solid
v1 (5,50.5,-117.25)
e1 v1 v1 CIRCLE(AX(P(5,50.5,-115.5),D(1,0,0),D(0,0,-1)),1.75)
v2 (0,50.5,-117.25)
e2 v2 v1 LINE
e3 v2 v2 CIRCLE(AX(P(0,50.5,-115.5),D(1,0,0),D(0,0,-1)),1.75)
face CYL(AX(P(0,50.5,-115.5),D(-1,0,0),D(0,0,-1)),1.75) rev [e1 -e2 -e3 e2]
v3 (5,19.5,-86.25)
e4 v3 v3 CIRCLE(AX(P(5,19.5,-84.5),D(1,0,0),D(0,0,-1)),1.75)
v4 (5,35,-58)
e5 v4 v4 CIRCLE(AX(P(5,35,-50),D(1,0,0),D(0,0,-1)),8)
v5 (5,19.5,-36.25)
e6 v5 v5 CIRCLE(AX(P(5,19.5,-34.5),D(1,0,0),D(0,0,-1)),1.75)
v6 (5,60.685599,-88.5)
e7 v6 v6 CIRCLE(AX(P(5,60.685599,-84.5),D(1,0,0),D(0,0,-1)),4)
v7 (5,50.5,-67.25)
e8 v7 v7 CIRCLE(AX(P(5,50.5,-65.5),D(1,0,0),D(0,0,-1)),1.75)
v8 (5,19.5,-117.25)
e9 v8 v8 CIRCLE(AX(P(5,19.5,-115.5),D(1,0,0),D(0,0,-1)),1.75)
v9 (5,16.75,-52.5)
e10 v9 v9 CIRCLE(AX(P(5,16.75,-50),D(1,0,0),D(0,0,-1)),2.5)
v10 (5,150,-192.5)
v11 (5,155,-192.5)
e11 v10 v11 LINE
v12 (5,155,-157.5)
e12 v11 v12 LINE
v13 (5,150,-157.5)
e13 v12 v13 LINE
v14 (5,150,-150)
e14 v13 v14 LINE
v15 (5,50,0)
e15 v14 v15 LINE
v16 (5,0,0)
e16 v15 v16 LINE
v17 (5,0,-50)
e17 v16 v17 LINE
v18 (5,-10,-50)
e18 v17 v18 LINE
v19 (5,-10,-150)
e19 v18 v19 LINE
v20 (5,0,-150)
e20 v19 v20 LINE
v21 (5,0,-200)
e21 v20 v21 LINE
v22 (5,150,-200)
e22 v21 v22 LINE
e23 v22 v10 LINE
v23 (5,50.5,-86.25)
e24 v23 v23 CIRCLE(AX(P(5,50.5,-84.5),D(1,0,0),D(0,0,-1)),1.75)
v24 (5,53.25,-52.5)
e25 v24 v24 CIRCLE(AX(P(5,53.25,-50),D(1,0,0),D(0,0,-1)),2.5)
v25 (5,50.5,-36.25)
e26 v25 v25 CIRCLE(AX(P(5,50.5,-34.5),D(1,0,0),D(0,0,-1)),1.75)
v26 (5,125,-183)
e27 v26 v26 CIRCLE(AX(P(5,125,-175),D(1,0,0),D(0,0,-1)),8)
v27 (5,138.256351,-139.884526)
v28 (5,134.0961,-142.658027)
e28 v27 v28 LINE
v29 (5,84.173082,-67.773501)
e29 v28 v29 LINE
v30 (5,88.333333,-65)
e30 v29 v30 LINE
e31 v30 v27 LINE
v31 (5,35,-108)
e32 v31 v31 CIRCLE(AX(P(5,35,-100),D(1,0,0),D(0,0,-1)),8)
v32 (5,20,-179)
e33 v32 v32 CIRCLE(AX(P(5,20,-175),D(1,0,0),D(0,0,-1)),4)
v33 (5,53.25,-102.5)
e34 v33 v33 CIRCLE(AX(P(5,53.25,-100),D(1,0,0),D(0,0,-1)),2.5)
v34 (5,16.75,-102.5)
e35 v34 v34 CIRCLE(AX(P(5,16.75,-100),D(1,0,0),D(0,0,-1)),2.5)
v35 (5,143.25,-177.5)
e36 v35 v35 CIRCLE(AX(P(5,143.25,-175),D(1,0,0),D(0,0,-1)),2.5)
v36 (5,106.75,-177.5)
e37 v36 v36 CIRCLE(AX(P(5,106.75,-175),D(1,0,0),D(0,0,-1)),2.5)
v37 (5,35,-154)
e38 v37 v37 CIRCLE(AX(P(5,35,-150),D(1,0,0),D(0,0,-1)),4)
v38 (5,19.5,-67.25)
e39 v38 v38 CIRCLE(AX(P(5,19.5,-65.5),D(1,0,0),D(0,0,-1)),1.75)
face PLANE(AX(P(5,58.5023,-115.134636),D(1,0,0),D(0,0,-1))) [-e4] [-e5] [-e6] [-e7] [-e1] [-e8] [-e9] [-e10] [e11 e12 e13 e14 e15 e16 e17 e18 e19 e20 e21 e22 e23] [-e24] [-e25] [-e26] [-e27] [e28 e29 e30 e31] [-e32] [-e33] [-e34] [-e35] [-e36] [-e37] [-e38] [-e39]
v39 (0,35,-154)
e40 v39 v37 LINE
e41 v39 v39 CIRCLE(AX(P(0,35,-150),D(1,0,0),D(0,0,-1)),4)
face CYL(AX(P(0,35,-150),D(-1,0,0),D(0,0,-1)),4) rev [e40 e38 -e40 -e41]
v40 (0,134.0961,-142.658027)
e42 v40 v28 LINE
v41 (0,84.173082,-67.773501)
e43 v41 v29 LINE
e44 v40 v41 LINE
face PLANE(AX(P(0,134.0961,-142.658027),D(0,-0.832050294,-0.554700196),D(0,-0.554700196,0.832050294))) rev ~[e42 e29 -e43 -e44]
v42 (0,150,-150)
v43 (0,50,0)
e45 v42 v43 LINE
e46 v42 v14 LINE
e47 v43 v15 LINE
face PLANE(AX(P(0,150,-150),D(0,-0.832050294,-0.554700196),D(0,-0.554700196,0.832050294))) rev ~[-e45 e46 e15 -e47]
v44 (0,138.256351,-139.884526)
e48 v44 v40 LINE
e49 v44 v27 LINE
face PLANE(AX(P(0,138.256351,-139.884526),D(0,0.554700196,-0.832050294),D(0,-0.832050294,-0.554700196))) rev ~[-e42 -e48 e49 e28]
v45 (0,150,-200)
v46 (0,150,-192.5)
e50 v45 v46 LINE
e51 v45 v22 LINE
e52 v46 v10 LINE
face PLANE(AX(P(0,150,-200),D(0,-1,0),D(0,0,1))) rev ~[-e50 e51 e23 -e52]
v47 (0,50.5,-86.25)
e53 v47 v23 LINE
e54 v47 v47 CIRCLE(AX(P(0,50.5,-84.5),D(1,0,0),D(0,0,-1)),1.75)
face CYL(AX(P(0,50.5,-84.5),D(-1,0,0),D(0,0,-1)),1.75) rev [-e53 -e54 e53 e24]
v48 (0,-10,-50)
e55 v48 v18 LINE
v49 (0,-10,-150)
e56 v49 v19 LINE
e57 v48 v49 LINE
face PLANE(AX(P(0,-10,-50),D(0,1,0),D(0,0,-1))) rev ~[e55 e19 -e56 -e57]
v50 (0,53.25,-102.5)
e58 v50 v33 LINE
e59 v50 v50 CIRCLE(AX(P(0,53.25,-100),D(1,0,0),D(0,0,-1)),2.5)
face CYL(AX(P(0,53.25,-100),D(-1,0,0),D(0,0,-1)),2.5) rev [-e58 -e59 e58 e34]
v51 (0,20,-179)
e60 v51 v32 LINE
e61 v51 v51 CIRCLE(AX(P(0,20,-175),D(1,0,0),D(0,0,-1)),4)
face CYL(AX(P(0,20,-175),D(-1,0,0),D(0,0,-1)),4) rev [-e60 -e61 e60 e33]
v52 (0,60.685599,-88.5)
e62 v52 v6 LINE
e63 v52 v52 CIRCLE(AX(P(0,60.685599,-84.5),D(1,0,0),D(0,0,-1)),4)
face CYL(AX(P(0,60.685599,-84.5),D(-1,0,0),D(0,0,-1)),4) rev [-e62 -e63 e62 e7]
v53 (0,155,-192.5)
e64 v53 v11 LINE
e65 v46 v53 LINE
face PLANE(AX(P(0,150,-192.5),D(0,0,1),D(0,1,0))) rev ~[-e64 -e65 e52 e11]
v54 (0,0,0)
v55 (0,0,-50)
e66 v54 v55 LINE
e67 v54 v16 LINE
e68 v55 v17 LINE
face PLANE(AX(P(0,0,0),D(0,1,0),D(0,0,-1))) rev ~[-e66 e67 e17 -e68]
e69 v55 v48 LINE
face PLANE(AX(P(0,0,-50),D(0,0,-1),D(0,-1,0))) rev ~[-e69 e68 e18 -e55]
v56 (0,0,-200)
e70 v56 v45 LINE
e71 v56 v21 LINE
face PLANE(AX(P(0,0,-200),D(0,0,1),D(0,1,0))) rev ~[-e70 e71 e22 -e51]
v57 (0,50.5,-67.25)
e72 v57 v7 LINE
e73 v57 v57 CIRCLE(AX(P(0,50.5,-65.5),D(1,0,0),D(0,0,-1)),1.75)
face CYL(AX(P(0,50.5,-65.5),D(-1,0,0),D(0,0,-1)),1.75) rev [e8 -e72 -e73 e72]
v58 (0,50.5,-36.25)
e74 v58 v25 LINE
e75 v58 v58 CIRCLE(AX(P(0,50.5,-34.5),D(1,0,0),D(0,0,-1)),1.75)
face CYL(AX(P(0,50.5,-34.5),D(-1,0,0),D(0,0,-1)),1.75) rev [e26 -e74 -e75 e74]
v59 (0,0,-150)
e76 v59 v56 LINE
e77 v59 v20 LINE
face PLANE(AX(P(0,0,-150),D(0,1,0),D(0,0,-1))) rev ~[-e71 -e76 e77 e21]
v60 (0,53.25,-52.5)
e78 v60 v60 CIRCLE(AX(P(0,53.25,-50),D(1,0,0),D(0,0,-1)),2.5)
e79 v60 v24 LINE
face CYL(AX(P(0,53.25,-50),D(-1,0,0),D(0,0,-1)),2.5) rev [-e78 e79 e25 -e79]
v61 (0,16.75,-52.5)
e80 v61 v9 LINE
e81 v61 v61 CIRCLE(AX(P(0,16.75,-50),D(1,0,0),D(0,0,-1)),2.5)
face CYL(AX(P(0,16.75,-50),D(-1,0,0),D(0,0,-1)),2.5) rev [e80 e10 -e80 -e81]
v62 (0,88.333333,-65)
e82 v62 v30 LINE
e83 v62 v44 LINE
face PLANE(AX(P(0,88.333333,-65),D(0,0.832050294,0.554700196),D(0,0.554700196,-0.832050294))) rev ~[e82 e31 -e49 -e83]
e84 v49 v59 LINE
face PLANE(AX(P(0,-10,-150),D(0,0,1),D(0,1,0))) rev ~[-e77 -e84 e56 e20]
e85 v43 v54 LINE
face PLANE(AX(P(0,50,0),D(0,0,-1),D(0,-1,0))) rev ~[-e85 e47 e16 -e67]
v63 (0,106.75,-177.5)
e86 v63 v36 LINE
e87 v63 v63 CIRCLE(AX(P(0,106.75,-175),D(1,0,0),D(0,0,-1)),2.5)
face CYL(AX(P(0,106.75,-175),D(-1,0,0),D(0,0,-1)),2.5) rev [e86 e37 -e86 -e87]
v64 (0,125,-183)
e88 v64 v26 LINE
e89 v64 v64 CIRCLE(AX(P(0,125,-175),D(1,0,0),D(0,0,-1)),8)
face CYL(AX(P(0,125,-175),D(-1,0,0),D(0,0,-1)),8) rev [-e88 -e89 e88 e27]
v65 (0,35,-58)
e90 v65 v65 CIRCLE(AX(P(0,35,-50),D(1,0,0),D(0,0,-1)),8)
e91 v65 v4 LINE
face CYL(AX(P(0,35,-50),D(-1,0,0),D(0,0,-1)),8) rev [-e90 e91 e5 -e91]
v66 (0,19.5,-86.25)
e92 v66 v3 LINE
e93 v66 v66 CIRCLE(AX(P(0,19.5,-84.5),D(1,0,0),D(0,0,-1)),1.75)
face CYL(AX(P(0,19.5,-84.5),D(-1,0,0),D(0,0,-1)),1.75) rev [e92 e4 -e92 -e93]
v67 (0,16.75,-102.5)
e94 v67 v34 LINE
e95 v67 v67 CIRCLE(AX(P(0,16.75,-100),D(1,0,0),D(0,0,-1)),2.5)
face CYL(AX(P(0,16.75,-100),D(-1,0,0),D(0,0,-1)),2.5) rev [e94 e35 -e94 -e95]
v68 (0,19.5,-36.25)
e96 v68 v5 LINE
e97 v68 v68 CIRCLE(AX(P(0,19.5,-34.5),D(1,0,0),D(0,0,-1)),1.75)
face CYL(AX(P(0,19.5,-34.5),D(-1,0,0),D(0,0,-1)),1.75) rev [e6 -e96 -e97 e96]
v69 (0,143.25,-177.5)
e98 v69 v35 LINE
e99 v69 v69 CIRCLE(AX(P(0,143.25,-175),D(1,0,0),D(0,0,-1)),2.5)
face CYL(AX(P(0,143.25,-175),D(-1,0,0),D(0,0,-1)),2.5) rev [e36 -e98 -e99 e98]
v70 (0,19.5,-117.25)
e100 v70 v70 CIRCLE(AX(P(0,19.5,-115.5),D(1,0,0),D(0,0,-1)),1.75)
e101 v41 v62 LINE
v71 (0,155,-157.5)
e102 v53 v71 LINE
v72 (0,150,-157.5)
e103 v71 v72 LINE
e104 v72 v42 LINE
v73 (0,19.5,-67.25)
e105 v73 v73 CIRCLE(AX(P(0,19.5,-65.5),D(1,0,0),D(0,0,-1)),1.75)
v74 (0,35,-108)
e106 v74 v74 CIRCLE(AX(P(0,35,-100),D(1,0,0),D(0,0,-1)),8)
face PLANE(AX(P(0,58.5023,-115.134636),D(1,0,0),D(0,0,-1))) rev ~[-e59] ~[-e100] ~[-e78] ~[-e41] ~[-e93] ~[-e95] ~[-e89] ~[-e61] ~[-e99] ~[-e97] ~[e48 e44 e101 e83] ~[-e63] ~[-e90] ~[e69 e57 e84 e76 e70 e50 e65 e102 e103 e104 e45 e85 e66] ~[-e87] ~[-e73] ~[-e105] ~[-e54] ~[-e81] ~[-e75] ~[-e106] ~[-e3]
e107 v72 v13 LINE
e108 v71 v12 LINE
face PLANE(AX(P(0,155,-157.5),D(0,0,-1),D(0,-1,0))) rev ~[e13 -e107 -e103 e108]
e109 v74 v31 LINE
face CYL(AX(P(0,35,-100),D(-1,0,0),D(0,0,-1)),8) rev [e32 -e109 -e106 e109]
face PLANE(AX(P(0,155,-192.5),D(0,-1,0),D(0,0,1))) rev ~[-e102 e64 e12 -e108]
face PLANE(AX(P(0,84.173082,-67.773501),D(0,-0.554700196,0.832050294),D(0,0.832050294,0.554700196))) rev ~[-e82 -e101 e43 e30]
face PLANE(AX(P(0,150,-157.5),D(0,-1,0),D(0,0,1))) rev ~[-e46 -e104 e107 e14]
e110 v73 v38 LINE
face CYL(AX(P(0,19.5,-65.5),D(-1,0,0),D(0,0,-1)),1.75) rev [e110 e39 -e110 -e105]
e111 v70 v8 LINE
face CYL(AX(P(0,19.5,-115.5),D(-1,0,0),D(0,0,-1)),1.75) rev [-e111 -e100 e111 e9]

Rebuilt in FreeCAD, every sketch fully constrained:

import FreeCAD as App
import Part
import Sketcher

doc = App.newDocument("Part")
body = doc.addObject("PartDesign::Body", "Body")

sketch1 = doc.addObject("Sketcher::SketchObject", "Sketch")
body.addObject(sketch1)
sketch1.AttachmentSupport = (doc.YZ_Plane, [""])
sketch1.MapMode = "FlatFace"
sketch1.addGeometry([
    Part.LineSegment(App.Vector(150, -150, 0), App.Vector(50, 0, 0)),
    Part.LineSegment(App.Vector(50, 0, 0), App.Vector(0, 0, 0)),
    Part.LineSegment(App.Vector(0, 0, 0), App.Vector(0, -50, 0)),
    Part.LineSegment(App.Vector(0, -50, 0), App.Vector(-10, -50, 0)),
    Part.LineSegment(App.Vector(-10, -50, 0), App.Vector(-10, -150, 0)),
    Part.LineSegment(App.Vector(-10, -150, 0), App.Vector(0, -150, 0)),
    Part.LineSegment(App.Vector(0, -150, 0), App.Vector(0, -200, 0)),
    Part.LineSegment(App.Vector(0, -200, 0), App.Vector(150, -200, 0)),
    Part.LineSegment(App.Vector(150, -200, 0), App.Vector(150, -192.5, 0)),
    Part.LineSegment(App.Vector(150, -192.5, 0), App.Vector(155, -192.5, 0)),
    Part.LineSegment(App.Vector(155, -192.5, 0), App.Vector(155, -157.5, 0)),
    Part.LineSegment(App.Vector(155, -157.5, 0), App.Vector(150, -157.5, 0)),
    Part.LineSegment(App.Vector(150, -157.5, 0), App.Vector(150, -150, 0)),
    Part.Circle(App.Vector(19.5, -34.5, 0), App.Vector(0, 0, 1), 1.8),
    Part.Circle(App.Vector(16.8, -50, 0), App.Vector(0, 0, 1), 2.5),
    Part.Circle(App.Vector(19.5, -65.5, 0), App.Vector(0, 0, 1), 1.8),
    Part.Circle(App.Vector(35, -50, 0), App.Vector(0, 0, 1), 8),
    Part.Circle(App.Vector(19.5, -84.5, 0), App.Vector(0, 0, 1), 1.8),
    Part.Circle(App.Vector(16.8, -100, 0), App.Vector(0, 0, 1), 2.5),
    Part.Circle(App.Vector(35, -100, 0), App.Vector(0, 0, 1), 8),
    Part.Circle(App.Vector(50.5, -34.5, 0), App.Vector(0, 0, 1), 1.8),
    Part.Circle(App.Vector(53.2, -50, 0), App.Vector(0, 0, 1), 2.5),
    Part.Circle(App.Vector(50.5, -65.5, 0), App.Vector(0, 0, 1), 1.8),
    Part.Circle(App.Vector(50.5, -84.5, 0), App.Vector(0, 0, 1), 1.8),
    Part.Circle(App.Vector(60.7, -84.5, 0), App.Vector(0, 0, 1), 4),
    Part.Circle(App.Vector(53.2, -100, 0), App.Vector(0, 0, 1), 2.5),
    Part.Circle(App.Vector(19.5, -115.5, 0), App.Vector(0, 0, 1), 1.8),
    Part.Circle(App.Vector(20, -175, 0), App.Vector(0, 0, 1), 4),
    Part.Circle(App.Vector(35, -150, 0), App.Vector(0, 0, 1), 4),
    Part.Circle(App.Vector(50.5, -115.5, 0), App.Vector(0, 0, 1), 1.8),
    Part.LineSegment(App.Vector(84.2, -67.8, 0), App.Vector(88.3, -65, 0)),
    Part.LineSegment(App.Vector(88.3, -65, 0), App.Vector(138.3, -139.9, 0)),
    Part.LineSegment(App.Vector(138.3, -139.9, 0), App.Vector(134.1, -142.7, 0)),
    Part.LineSegment(App.Vector(134.1, -142.7, 0), App.Vector(84.2, -67.8, 0)),
    Part.Circle(App.Vector(106.8, -175, 0), App.Vector(0, 0, 1), 2.5),
    Part.Circle(App.Vector(125, -175, 0), App.Vector(0, 0, 1), 8),
    Part.Circle(App.Vector(143.2, -175, 0), App.Vector(0, 0, 1), 2.5),
], False)
sketch1.addConstraint([
    Sketcher.Constraint("Coincident", 0, 2, 1, 1),
    Sketcher.Constraint("Coincident", 1, 2, 2, 1),
    Sketcher.Constraint("Coincident", 2, 2, 3, 1),
    Sketcher.Constraint("Coincident", 3, 2, 4, 1),
    Sketcher.Constraint("Coincident", 4, 2, 5, 1),
    Sketcher.Constraint("Coincident", 5, 2, 6, 1),
    Sketcher.Constraint("Coincident", 6, 2, 7, 1),
    Sketcher.Constraint("Coincident", 7, 2, 8, 1),
    Sketcher.Constraint("Coincident", 8, 2, 9, 1),
    Sketcher.Constraint("Coincident", 9, 2, 10, 1),
    Sketcher.Constraint("Coincident", 10, 2, 11, 1),
    Sketcher.Constraint("Coincident", 11, 2, 12, 1),
    Sketcher.Constraint("Coincident", 12, 2, 0, 1),
    Sketcher.Constraint("Coincident", 30, 2, 31, 1),
    Sketcher.Constraint("Coincident", 31, 2, 32, 1),
    Sketcher.Constraint("Coincident", 32, 2, 33, 1),
    Sketcher.Constraint("Coincident", 33, 2, 30, 1),
    Sketcher.Constraint("Horizontal", 1),
    Sketcher.Constraint("Vertical", 2),
    Sketcher.Constraint("Horizontal", 3),
    Sketcher.Constraint("Vertical", 4),
    Sketcher.Constraint("Horizontal", 5),
    Sketcher.Constraint("Vertical", 6),
    Sketcher.Constraint("Horizontal", 7),
    Sketcher.Constraint("Vertical", 8),
    Sketcher.Constraint("Horizontal", 9),
    Sketcher.Constraint("Vertical", 10),
    Sketcher.Constraint("Horizontal", 11),
    Sketcher.Constraint("Vertical", 12),
    Sketcher.Constraint("Coincident", 1, 2, -1, 1),
    Sketcher.Constraint("Equal", 13, 15),
    Sketcher.Constraint("Equal", 15, 17),
    Sketcher.Constraint("Equal", 14, 18),
    Sketcher.Constraint("Equal", 16, 19),
    Sketcher.Constraint("Equal", 17, 20),
    Sketcher.Constraint("Equal", 18, 21),
    Sketcher.Constraint("Equal", 20, 22),
    Sketcher.Constraint("Equal", 22, 23),
    Sketcher.Constraint("Equal", 21, 25),
    Sketcher.Constraint("Equal", 23, 26),
    Sketcher.Constraint("Equal", 24, 27),
    Sketcher.Constraint("Equal", 27, 28),
    Sketcher.Constraint("Equal", 26, 29),
    Sketcher.Constraint("Equal", 25, 34),
    Sketcher.Constraint("Equal", 19, 35),
    Sketcher.Constraint("Equal", 34, 36),
    Sketcher.Constraint("PointOnObject", 5, 2, -2),
    Sketcher.Constraint("Perpendicular", 0, 30),
    Sketcher.Constraint("Perpendicular", 30, 31),
    Sketcher.Constraint("Perpendicular", 31, 32),
    Sketcher.Constraint("Perpendicular", 32, 33),
    Sketcher.Constraint("Horizontal", 14, 3, 16, 3),
    Sketcher.Constraint("Horizontal", 18, 3, 19, 3),
    Sketcher.Constraint("Horizontal", 13, 3, 20, 3),
    Sketcher.Constraint("Horizontal", 16, 3, 21, 3),
    Sketcher.Constraint("Horizontal", 15, 3, 22, 3),
    Sketcher.Constraint("Horizontal", 17, 3, 23, 3),
    Sketcher.Constraint("Horizontal", 23, 3, 24, 3),
    Sketcher.Constraint("Horizontal", 19, 3, 25, 3),
    Sketcher.Constraint("Horizontal", 26, 3, 29, 3),
    Sketcher.Constraint("Horizontal", 27, 3, 34, 3),
    Sketcher.Constraint("Horizontal", 34, 3, 35, 3),
    Sketcher.Constraint("Horizontal", 35, 3, 36, 3),
    Sketcher.Constraint("Horizontal", 21, 3, 2, 2),
    Sketcher.Constraint("Horizontal", 28, 3, 4, 2),
    Sketcher.Constraint("Horizontal", 5, 2, 12, 2),
    Sketcher.Constraint("Vertical", 13, 3, 15, 3),
    Sketcher.Constraint("Vertical", 15, 3, 17, 3),
    Sketcher.Constraint("Vertical", 14, 3, 18, 3),
    Sketcher.Constraint("Vertical", 16, 3, 19, 3),
    Sketcher.Constraint("Vertical", 20, 3, 22, 3),
    Sketcher.Constraint("Vertical", 22, 3, 23, 3),
    Sketcher.Constraint("Vertical", 21, 3, 25, 3),
    Sketcher.Constraint("Vertical", 17, 3, 26, 3),
    Sketcher.Constraint("Vertical", 19, 3, 28, 3),
    Sketcher.Constraint("Vertical", 23, 3, 29, 3),
    Sketcher.Constraint("Vertical", 8, 2, 11, 2),
    Sketcher.Constraint("Equal", 1, 2),
    Sketcher.Constraint("Equal", 2, 6),
    Sketcher.Constraint("Equal", 8, 12),
    Sketcher.Constraint("Diameter", 14, 5.0),
    Sketcher.Constraint("Diameter", 16, 16.0),
    Sketcher.Constraint("Diameter", 24, 8.0),
    Sketcher.Constraint("Diameter", 13, 3.5),
    Sketcher.Constraint("DistanceX", 1, 2, 1, 1, 50.0),
    Sketcher.Constraint("DistanceX", 3, 2, 3, 1, 10.0),
    Sketcher.Constraint("DistanceX", 7, 1, 7, 2, 150.0),
    Sketcher.Constraint("DistanceX", 9, 1, 9, 2, 5.0),
    Sketcher.Constraint("DistanceY", 4, 2, 4, 1, 100.0),
    Sketcher.Constraint("DistanceY", 10, 1, 10, 2, 35.0),
    Sketcher.Constraint("Distance", 30, 5.0),
    Sketcher.Constraint("Distance", 31, 90.0),
    Sketcher.Constraint("DistanceX", -1, 1, 16, 3, 35.0),
    Sketcher.Constraint("DistanceY", 18, 3, -1, 1, 100.0),
    Sketcher.Constraint("DistanceX", -1, 1, 27, 3, 20.0),
    Sketcher.Constraint("DistanceY", 27, 3, -1, 1, 175.0),
    Sketcher.Constraint("DistanceX", -1, 1, 35, 3, 125.0),
    Sketcher.Constraint("DistanceY", 30, 2, -1, 1, 65.0),
    Sketcher.Constraint("DistanceY", 15, 3, 13, 3, 31.0),
    Sketcher.Constraint("DistanceY", 17, 3, 15, 3, 19.0),
    Sketcher.Constraint("DistanceX", 13, 3, 20, 3, 31.0),
    Sketcher.Constraint("DistanceY", 26, 3, 17, 3, 31.0),
    Sketcher.Constraint("DistanceX", 25, 3, 36, 3, 90.0),
    Sketcher.Constraint("DistanceX", -1, 1, 13, 3, 19.5),
    Sketcher.Constraint("DistanceY", 13, 3, -1, 1, 34.5),
    Sketcher.Constraint("DistanceX", 14, 3, 21, 3, 36.5),
    Sketcher.Constraint("DistanceX", 25, 3, 34, 3, 53.5),
    Sketcher.Constraint("DistanceX", -1, 1, 14, 3, 16.75),
    Sketcher.Constraint("DistanceX", -1, 1, 24, 3, 60.685599),
    Sketcher.Constraint("DistanceX", -1, 1, 32, 2, 134.0961),
])
pad1 = doc.addObject("PartDesign::Pad", "Pad")
body.addObject(pad1)
pad1.Profile = sketch1
pad1.Length = 5

doc.recompute()
